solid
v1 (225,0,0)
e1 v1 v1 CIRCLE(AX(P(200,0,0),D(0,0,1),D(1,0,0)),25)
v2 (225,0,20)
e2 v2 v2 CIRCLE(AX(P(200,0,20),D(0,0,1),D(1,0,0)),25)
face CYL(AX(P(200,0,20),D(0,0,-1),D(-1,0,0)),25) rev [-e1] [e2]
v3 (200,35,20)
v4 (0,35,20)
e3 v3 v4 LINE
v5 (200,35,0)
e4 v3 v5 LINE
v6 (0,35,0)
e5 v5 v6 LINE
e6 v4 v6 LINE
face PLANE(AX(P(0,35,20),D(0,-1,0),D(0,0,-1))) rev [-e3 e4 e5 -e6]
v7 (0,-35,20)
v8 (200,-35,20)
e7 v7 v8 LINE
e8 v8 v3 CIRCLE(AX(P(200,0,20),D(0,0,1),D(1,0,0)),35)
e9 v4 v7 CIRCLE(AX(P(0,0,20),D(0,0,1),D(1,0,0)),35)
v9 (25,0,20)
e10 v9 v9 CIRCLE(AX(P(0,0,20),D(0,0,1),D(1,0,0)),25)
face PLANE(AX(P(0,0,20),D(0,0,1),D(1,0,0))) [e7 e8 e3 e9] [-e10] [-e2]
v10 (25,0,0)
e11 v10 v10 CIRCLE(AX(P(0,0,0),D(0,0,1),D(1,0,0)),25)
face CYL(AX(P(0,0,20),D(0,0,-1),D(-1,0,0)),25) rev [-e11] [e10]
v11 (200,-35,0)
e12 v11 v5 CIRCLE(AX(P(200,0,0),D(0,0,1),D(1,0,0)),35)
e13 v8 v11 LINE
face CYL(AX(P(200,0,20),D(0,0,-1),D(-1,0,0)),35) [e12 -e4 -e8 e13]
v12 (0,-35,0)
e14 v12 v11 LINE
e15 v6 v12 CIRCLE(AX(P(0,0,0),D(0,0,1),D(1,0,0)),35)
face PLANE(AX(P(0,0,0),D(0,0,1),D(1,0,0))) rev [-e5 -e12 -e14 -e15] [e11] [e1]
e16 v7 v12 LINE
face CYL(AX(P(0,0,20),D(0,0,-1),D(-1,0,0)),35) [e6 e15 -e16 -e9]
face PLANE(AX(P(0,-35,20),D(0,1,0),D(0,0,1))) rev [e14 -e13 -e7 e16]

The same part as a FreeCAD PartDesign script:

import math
import FreeCAD as App
import Part
import Sketcher

V = App.Vector

doc = App.newDocument("Part")
body = doc.addObject("PartDesign::Body", "Body")

sketch1 = body.newObject("Sketcher::SketchObject", "Sketch")
sketch1.AttachmentSupport = (doc.getObject("XY_Plane"), [""])
sketch1.MapMode = "FlatFace"
sketch1.addGeometry(Part.LineSegment(V(200, 35, 0), V(0, 35, 0)), False)
sketch1.addGeometry(Part.ArcOfCircle(Part.Circle(V(0, 0, 0), V(0, 0, 1), 35), math.radians(90), math.radians(270)), False)
sketch1.addGeometry(Part.LineSegment(V(0, -35, 0), V(200, -35, 0)), False)
sketch1.addGeometry(Part.ArcOfCircle(Part.Circle(V(200, 0, 0), V(0, 0, 1), 35), math.radians(-90), math.radians(90)), False)
sketch1.addGeometry(Part.Circle(V(200, 0, 0), V(0, 0, 1), 25), False)
sketch1.addGeometry(Part.Circle(V(0, 0, 0), V(0, 0, 1), 25), False)
sketch1.addConstraint(Sketcher.Constraint("Tangent", 0, 2, 1, 1))
sketch1.addConstraint(Sketcher.Constraint("Tangent", 1, 2, 2, 1))
sketch1.addConstraint(Sketcher.Constraint("Tangent", 2, 2, 3, 1))
sketch1.addConstraint(Sketcher.Constraint("Tangent", 3, 2, 0, 1))
sketch1.addConstraint(Sketcher.Constraint("Horizontal", 0))
sketch1.addConstraint(Sketcher.Constraint("Horizontal", 2))
sketch1.addConstraint(Sketcher.Constraint("Coincident", 1, 3, -1, 1))
sketch1.addConstraint(Sketcher.Constraint("Coincident", 5, 3, -1, 1))
sketch1.addConstraint(Sketcher.Constraint("Coincident", 4, 3, 3, 3))
sketch1.addConstraint(Sketcher.Constraint("Equal", 4, 5))
sketch1.addConstraint(Sketcher.Constraint("Diameter", 4, 50.0))
sketch1.addConstraint(Sketcher.Constraint("Radius", 1, 35.0))
sketch1.addConstraint(Sketcher.Constraint("DistanceX", 0, 2, 0, 1, 200.0))
pad1 = body.newObject("PartDesign::Pad", "Pad")
pad1.Profile = sketch1
pad1.Length = 20

doc.recompute()
